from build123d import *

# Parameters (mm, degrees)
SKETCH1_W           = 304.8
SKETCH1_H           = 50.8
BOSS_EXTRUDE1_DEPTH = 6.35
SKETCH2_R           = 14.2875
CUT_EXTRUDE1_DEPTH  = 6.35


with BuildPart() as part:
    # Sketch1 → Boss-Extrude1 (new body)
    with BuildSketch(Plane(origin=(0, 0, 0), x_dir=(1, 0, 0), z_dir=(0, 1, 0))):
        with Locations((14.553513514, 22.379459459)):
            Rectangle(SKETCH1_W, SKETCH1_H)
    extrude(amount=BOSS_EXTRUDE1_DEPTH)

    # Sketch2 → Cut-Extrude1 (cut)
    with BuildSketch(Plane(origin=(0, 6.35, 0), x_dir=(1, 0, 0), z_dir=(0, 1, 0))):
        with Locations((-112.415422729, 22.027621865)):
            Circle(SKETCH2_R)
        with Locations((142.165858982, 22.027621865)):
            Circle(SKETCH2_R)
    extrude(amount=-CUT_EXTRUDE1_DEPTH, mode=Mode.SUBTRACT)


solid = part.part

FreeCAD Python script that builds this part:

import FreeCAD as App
import Part
import Sketcher

V = App.Vector
Q = App.Units.Quantity


def add_polygon(sketch, points):
    """Adds a closed chain of lines whose ends are joined by coincident constraints."""
    first, n = sketch.GeometryCount, len(points)
    for a, b in zip(points, points[1:] + points[:1]):
        sketch.addGeometry(Part.LineSegment(App.Vector(*a, 0), App.Vector(*b, 0)), False)
    for i in range(n):
        sketch.addConstraint(Sketcher.Constraint("Coincident", first + i, 2, first + (i + 1) % n, 1))

doc = App.newDocument("Part")
params = doc.addObject("Spreadsheet::Sheet", "Params")
for row, (alias, value) in enumerate([
    ("sketch1_width", "12 in"),
    ("sketch1_height", "2 in"),
    ("pad1_length", "0.25 in"),
    ("sketch2_diameter", "1.125 in"),
    ("pocket1_length", "0.25 in"),
], start=1):
    params.set(f"A{row}", alias)
    params.set(f"B{row}", "=" + value)
    params.setAlias(f"B{row}", alias)

body = doc.addObject("PartDesign::Body", "Body")

# Sketch on XZ plane
sketch1 = body.newObject("Sketcher::SketchObject", "Sketch")
sketch1.AttachmentSupport = (doc.getObject("XZ_Plane"), [""])
sketch1.MapMode = "FlatFace"
add_polygon(sketch1, [(-138, -48), (-138, 3), (167, 3), (167, -48)])  # lines 0-3
sketch1.addConstraint([
    Sketcher.Constraint("Vertical", 0),
    Sketcher.Constraint("Horizontal", 1),
    Sketcher.Constraint("Vertical", 2),
    Sketcher.Constraint("Horizontal", 3),
    Sketcher.Constraint("DistanceX", 1, 1, 1, 2, Q("12 in")),
    Sketcher.Constraint("DistanceY", 0, 1, 0, 2, Q("2 in")),
    Sketcher.Constraint("DistanceY", -1, 1, 0, 2, 3.020541),
    Sketcher.Constraint("DistanceX", 0, 2, -1, 1, 137.846486),
])
sketch1.setExpression("Constraints[8]", "Params.sketch1_width")
sketch1.setExpression("Constraints[9]", "Params.sketch1_height")
pad1 = body.newObject("PartDesign::Pad", "Pad")
pad1.Profile = sketch1
pad1.setExpression("Length", "Params.pad1_length")
pad1.Reversed = True

# Sketch on XZ plane
sketch2 = body.newObject("Sketcher::SketchObject", "Sketch001")
sketch2.AttachmentSupport = (doc.getObject("XZ_Plane"), [""])
sketch2.MapMode = "FlatFace"
sketch2.AttachmentOffset = App.Placement(V(0, 0, -0.25 * 25.4), App.Rotation())
sketch2.addGeometry([
    Part.Circle(V(-112, -22, 0), V(0, 0, 1), 14),
    Part.Circle(V(142, -22, 0), V(0, 0, 1), 14),
], False)
sketch2.addConstraint([
    Sketcher.Constraint("Equal", 0, 1),
    Sketcher.Constraint("Horizontal", 0, 3, 1, 3),
    Sketcher.Constraint("Diameter", 0, Q("1.125 in")),
    Sketcher.Constraint("DistanceY", 0, 3, -1, 1, 22.027622),
    Sketcher.Constraint("DistanceX", -1, 1, 1, 3, 142.165859),
    Sketcher.Constraint("DistanceX", 0, 3, 1, 3, 254.581282),
])
sketch2.setExpression("Constraints[2]", "Params.sketch2_diameter")
pocket1 = body.newObject("PartDesign::Pocket", "Pocket")
pocket1.Profile = sketch2
pocket1.setExpression("Length", "Params.pocket1_length")
pocket1.Reversed = True

doc.recompute()
